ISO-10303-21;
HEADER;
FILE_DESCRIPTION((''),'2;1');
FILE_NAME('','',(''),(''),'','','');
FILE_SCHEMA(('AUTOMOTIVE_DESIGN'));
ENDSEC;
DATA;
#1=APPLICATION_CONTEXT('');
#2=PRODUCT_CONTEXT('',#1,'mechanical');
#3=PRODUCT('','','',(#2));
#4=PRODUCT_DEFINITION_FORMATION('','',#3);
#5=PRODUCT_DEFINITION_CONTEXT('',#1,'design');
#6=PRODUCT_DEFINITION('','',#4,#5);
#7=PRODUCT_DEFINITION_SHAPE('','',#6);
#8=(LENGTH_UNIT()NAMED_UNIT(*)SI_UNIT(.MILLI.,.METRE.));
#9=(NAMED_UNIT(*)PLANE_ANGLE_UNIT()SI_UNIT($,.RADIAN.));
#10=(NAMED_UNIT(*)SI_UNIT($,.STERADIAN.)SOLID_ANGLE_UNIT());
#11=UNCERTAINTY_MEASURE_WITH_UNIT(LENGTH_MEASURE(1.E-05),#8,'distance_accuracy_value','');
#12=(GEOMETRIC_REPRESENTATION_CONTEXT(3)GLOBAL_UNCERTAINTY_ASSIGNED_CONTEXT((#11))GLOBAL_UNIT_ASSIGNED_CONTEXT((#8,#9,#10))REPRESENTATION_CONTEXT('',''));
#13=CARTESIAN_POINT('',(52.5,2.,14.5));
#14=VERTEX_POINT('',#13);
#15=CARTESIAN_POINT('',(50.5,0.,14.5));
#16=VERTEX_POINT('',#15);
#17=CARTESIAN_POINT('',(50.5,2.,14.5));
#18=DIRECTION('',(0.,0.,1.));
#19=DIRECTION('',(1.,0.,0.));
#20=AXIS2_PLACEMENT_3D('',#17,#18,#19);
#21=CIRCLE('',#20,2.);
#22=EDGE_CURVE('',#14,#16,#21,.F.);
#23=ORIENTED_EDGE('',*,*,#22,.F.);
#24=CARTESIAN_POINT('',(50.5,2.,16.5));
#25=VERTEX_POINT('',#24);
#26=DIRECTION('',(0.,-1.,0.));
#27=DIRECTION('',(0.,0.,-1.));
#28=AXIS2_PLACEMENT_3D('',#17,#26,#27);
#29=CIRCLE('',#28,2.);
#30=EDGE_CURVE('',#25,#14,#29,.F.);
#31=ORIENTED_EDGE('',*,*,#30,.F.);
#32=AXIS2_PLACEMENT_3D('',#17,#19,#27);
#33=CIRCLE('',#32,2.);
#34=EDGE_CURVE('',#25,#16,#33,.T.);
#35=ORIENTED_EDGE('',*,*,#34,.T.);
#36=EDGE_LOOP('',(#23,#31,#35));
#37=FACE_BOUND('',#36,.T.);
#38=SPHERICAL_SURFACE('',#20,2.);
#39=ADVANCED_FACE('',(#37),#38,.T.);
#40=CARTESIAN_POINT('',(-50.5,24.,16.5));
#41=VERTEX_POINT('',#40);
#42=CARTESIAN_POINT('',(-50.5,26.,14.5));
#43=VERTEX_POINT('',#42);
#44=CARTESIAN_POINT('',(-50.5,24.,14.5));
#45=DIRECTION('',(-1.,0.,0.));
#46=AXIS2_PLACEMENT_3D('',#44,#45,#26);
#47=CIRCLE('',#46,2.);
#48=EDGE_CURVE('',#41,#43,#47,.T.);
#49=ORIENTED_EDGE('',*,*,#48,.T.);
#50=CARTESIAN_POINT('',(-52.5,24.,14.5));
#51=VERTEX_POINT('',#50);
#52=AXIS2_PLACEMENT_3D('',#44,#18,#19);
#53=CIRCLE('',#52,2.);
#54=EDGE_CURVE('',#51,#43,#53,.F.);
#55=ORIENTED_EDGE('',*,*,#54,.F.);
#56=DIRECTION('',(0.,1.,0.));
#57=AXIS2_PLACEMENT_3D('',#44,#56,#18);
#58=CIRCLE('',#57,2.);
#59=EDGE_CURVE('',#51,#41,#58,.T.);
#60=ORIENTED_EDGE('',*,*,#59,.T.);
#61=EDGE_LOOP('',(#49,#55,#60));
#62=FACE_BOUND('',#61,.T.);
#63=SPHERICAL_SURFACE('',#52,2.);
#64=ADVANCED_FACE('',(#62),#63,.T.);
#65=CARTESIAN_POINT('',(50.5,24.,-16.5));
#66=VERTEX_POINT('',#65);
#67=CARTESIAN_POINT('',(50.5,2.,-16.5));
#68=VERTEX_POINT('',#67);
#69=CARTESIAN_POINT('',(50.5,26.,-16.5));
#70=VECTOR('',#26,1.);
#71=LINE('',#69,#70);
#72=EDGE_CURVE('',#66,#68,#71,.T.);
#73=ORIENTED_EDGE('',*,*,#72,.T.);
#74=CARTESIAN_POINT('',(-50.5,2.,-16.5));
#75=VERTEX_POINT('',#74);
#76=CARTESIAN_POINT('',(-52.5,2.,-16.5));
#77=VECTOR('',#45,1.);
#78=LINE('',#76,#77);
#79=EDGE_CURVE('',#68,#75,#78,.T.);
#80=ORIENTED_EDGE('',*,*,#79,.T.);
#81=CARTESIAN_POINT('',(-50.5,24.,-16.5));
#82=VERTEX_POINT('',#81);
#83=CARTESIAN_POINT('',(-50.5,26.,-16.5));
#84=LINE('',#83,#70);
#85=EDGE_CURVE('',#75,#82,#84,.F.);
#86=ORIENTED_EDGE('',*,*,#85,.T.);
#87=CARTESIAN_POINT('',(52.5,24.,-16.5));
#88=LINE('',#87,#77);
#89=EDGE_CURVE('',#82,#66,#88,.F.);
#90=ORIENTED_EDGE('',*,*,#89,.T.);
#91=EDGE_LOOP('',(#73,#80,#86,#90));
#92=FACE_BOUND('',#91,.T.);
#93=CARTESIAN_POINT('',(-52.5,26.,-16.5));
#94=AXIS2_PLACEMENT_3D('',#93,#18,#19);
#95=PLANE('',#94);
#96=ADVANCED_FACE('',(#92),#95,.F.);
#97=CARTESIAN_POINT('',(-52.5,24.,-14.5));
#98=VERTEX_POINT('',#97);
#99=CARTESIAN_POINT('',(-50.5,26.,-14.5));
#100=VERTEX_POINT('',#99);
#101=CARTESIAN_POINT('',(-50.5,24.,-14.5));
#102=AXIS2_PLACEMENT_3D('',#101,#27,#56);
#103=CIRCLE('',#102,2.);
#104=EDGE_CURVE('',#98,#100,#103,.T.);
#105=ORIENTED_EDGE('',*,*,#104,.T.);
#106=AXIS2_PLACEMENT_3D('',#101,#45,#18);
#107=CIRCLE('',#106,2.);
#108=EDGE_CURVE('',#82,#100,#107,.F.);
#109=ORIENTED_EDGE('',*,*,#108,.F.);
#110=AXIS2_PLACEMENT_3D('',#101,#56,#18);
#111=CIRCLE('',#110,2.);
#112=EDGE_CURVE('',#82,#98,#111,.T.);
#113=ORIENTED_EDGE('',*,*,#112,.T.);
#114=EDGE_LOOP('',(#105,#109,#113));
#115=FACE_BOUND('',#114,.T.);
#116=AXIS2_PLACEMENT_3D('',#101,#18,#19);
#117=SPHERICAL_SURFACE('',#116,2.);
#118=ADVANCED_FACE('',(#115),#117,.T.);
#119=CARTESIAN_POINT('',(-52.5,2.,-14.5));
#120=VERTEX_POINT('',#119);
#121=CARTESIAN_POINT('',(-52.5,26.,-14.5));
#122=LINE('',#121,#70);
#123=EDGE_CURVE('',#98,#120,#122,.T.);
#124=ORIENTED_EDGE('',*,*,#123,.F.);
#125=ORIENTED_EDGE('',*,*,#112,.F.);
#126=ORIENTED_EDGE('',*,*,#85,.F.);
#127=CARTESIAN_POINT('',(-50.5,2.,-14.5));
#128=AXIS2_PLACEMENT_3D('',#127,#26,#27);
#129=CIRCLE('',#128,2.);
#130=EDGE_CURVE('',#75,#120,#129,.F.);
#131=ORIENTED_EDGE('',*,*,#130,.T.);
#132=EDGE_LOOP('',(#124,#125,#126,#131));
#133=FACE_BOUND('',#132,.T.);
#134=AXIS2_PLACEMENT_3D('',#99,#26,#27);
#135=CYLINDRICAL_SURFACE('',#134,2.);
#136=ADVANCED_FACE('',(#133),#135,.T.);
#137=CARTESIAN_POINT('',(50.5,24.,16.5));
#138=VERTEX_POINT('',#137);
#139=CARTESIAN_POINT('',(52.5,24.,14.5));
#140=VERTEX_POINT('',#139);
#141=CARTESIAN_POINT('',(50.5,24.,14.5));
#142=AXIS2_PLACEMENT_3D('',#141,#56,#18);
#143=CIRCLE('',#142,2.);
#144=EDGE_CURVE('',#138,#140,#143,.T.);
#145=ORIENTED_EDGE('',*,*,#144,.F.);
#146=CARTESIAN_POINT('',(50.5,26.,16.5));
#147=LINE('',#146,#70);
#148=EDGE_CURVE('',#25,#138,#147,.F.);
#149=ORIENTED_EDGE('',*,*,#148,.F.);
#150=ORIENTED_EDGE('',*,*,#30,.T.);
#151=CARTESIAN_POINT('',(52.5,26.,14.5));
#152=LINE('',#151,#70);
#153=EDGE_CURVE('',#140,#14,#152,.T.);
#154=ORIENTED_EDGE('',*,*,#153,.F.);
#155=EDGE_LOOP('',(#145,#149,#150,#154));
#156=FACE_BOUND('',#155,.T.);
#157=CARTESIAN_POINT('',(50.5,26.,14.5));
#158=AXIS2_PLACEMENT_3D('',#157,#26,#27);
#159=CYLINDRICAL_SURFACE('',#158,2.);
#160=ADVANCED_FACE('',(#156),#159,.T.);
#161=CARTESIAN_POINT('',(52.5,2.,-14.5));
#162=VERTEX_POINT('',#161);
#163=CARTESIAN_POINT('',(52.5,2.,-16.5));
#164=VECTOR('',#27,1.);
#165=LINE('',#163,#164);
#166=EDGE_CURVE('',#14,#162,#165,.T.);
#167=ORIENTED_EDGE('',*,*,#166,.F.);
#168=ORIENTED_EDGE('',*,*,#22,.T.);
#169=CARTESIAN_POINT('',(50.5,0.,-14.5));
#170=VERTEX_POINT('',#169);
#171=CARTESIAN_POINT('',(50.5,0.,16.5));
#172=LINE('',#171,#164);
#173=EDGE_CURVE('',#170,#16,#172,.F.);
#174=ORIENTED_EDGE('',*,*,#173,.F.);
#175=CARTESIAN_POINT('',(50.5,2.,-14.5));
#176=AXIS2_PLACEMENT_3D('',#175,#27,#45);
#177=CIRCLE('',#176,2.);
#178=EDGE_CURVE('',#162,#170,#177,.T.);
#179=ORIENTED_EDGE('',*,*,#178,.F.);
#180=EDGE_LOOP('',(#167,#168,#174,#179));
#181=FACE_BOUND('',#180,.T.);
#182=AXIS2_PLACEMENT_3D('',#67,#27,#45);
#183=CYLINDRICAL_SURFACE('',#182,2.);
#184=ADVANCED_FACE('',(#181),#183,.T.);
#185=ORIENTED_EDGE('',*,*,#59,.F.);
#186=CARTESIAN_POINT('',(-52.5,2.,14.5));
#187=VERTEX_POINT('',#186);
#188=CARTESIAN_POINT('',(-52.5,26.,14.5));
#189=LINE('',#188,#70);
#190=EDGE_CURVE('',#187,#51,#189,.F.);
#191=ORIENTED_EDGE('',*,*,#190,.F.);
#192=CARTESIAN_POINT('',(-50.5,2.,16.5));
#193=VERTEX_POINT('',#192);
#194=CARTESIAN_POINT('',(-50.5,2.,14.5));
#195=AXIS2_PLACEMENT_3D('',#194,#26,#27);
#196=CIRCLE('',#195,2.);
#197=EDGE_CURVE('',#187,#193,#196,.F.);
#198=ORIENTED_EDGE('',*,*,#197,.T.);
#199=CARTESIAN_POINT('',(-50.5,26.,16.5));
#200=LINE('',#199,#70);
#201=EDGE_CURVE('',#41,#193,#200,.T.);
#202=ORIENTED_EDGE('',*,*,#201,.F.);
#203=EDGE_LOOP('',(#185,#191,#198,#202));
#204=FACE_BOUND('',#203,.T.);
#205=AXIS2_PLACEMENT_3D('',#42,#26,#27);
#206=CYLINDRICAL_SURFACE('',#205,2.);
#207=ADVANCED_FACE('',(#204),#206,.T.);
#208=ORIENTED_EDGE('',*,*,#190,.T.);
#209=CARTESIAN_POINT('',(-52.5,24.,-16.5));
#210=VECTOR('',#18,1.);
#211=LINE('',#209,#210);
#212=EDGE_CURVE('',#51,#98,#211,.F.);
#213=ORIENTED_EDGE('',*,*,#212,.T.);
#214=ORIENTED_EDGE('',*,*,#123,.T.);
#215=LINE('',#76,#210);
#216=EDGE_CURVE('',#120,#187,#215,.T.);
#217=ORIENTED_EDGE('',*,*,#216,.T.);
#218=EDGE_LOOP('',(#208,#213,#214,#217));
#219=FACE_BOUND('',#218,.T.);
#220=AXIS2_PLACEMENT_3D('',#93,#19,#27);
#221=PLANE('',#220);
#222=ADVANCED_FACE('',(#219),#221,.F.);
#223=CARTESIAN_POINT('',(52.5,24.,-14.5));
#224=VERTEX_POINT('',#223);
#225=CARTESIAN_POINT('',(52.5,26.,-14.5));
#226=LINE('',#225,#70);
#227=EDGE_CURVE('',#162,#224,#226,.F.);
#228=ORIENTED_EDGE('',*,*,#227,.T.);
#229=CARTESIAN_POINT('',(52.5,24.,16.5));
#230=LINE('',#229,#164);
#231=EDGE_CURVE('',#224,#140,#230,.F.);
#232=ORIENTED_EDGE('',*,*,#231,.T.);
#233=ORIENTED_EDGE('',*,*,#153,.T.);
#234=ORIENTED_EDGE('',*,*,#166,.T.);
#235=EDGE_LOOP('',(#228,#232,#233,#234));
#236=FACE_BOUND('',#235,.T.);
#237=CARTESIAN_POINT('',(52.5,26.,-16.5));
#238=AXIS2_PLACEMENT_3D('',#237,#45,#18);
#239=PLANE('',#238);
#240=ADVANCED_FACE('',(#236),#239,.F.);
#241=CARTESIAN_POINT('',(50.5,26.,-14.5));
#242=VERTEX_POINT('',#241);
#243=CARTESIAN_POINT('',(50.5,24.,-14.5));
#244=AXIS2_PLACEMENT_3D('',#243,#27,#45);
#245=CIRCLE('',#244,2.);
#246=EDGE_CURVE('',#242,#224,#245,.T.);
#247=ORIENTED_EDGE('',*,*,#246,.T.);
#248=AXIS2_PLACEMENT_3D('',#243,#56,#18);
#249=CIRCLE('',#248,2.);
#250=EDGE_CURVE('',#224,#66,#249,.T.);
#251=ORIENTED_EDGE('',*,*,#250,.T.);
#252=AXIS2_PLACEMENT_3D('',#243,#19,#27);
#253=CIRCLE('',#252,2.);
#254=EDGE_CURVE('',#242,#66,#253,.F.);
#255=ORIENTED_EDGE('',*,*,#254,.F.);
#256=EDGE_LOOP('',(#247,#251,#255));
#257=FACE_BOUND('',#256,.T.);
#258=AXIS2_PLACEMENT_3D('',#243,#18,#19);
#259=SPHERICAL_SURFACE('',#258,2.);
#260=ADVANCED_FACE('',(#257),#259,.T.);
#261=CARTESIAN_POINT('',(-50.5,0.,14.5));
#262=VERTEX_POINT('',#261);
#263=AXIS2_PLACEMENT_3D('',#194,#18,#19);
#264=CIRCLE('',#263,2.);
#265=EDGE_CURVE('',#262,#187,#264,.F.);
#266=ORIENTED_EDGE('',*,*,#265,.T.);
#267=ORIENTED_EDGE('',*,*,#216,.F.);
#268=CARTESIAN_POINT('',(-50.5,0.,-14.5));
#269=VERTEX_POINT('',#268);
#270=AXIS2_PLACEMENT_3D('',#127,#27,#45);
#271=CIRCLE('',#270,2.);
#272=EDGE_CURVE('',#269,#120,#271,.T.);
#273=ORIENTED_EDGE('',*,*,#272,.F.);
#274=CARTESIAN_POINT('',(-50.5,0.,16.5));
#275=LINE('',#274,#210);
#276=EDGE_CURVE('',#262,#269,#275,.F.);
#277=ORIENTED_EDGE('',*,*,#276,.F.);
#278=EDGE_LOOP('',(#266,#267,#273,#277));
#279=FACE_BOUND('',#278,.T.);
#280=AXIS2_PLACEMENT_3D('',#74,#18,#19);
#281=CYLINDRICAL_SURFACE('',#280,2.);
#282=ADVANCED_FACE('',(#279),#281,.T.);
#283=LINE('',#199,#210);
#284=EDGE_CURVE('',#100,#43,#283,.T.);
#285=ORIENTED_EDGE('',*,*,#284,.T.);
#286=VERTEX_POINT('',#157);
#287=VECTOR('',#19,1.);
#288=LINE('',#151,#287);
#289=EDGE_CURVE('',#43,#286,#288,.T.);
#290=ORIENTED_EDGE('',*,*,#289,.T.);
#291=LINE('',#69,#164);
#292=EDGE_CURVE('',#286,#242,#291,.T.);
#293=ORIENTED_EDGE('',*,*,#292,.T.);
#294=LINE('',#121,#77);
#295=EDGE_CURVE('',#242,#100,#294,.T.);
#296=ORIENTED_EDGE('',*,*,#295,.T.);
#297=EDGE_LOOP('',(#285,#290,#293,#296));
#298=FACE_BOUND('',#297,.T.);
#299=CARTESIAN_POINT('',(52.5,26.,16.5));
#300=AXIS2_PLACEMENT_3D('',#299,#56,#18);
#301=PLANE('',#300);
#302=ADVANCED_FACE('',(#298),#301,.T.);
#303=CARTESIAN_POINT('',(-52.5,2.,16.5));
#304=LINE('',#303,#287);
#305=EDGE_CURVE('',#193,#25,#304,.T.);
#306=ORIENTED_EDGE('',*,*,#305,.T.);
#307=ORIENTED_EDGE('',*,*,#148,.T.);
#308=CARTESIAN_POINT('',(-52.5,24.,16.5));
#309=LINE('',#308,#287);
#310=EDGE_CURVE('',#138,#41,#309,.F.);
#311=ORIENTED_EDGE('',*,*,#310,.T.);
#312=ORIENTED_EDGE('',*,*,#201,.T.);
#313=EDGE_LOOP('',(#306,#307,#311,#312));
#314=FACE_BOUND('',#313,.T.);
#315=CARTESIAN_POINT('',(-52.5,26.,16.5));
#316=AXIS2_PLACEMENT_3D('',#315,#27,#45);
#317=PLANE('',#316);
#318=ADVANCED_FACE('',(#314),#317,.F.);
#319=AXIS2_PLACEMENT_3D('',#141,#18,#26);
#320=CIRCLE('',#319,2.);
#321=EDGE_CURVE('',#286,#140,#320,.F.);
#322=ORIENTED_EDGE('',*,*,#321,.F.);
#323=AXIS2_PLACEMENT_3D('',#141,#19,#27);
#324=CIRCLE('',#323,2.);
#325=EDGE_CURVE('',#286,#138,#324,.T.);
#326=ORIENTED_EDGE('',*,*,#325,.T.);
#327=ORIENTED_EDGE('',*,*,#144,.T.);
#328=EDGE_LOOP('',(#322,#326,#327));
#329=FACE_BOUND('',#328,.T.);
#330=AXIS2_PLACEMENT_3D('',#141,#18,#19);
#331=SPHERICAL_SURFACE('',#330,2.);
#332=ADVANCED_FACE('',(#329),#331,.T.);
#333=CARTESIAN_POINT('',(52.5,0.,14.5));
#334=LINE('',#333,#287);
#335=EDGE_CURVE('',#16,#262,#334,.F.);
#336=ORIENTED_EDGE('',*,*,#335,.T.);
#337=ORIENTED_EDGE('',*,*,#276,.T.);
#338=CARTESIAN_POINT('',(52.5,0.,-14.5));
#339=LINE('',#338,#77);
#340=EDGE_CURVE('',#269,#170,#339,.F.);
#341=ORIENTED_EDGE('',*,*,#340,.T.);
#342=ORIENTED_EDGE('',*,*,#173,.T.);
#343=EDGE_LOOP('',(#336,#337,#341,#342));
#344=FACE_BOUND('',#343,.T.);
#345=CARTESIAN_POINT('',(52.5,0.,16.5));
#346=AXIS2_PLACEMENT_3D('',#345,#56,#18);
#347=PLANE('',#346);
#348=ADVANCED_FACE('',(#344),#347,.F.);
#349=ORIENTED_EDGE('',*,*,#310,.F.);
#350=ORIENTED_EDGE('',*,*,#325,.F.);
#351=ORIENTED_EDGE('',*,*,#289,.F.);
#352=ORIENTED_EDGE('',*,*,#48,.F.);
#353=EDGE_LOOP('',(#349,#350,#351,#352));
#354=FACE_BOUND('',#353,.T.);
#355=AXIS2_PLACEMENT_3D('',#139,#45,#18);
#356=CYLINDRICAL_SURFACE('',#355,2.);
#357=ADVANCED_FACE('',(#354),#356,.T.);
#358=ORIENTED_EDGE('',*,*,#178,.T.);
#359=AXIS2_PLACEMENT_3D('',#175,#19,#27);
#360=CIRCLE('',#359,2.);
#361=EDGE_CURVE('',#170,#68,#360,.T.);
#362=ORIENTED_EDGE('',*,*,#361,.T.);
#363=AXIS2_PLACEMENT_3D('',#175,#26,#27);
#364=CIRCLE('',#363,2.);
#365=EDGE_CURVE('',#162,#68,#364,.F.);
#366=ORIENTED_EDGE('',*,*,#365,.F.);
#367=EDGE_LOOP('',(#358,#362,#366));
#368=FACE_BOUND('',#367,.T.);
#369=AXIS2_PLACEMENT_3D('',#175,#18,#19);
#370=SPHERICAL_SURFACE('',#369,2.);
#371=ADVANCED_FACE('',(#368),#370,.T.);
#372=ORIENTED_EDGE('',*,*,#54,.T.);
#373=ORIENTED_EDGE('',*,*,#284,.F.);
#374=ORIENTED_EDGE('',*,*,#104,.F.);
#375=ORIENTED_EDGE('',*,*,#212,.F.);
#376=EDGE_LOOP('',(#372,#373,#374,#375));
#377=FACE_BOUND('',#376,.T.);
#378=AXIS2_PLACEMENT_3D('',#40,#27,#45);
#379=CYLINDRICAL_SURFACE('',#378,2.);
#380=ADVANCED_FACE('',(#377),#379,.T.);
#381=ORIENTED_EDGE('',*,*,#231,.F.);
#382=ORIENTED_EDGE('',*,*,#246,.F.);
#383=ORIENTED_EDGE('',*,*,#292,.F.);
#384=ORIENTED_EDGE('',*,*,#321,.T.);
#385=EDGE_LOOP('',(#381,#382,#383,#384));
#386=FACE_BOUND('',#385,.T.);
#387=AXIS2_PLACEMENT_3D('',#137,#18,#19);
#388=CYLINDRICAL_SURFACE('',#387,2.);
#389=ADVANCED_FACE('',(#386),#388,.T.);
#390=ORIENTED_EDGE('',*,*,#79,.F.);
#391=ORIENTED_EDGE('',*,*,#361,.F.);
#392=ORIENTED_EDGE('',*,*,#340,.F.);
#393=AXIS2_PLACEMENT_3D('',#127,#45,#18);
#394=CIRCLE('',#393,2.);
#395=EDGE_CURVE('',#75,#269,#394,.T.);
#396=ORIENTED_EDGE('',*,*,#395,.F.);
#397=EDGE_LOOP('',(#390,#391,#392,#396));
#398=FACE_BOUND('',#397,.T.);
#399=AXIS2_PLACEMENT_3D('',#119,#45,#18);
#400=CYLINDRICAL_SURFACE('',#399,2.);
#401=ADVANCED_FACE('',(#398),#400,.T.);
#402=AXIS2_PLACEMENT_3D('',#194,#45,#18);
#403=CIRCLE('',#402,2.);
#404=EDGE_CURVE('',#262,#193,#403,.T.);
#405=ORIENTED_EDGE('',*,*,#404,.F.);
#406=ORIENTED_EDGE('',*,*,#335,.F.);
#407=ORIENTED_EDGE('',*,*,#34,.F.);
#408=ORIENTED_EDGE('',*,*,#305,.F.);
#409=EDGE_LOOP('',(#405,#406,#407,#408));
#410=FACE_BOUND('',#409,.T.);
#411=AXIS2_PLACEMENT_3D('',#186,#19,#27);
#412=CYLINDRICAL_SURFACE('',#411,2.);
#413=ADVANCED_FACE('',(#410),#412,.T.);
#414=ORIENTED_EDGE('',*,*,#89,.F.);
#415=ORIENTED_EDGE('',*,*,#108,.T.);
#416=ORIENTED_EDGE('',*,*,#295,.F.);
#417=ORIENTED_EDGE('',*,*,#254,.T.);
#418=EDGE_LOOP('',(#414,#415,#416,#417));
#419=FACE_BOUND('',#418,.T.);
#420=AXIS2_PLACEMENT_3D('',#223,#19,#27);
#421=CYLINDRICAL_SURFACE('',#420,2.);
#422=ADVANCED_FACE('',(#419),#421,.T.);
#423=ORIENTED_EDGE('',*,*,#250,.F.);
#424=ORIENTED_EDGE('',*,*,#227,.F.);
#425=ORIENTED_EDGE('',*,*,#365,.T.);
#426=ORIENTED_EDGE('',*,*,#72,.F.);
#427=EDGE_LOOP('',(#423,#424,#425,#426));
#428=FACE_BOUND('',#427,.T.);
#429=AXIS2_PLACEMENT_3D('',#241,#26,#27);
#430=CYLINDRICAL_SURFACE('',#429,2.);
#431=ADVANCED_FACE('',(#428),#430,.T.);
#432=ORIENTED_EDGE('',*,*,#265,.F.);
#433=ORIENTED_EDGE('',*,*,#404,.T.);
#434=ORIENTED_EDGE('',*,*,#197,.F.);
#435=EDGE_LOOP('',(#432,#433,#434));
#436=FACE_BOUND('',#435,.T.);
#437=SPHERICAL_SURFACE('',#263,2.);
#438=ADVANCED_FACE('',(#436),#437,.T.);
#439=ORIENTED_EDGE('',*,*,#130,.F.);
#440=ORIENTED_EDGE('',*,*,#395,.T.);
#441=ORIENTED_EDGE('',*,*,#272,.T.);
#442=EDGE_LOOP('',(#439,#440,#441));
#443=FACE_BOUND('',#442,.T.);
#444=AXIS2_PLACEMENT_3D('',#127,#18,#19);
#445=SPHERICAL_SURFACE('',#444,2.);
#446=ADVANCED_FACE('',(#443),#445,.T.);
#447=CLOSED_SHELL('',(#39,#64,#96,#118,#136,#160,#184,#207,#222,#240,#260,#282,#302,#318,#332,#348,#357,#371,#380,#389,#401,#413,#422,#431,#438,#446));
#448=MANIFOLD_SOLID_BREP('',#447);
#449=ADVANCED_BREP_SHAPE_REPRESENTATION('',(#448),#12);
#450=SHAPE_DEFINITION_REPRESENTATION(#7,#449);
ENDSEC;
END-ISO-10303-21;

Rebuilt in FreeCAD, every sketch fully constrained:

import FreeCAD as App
import Part
import Sketcher
from FreeCAD import Vector

doc = App.newDocument("Part")
params = doc.addObject("Spreadsheet::Sheet", "Params")
for row, (alias, value) in enumerate([
    ("sketch1_width", "105 mm"),
    ("sketch1_height", "33 mm"),
    ("pad1_length", "26 mm"),
    ("fillet_radius", "2 mm"),
], start=1):
    params.set(f"A{row}", alias)
    params.set(f"B{row}", "=" + value)
    params.setAlias(f"B{row}", alias)

body = doc.addObject("PartDesign::Body", "Body")

sketch1 = doc.addObject("Sketcher::SketchObject", "Sketch")
body.addObject(sketch1)
sketch1.AttachmentSupport = (doc.XZ_Plane, [""])
sketch1.MapMode = "FlatFace"
sketch1.addGeometry(Part.LineSegment(Vector(-52, -16, 0), Vector(-52, 16, 0)), False)
sketch1.addGeometry(Part.LineSegment(Vector(-52, 16, 0), Vector(52, 16, 0)), False)
sketch1.addGeometry(Part.LineSegment(Vector(52, 16, 0), Vector(52, -16, 0)), False)
sketch1.addGeometry(Part.LineSegment(Vector(52, -16, 0), Vector(-52, -16, 0)), False)
sketch1.addConstraint(Sketcher.Constraint("Coincident", 0, 2, 1, 1))
sketch1.addConstraint(Sketcher.Constraint("Coincident", 1, 2, 2, 1))
sketch1.addConstraint(Sketcher.Constraint("Coincident", 2, 2, 3, 1))
sketch1.addConstraint(Sketcher.Constraint("Coincident", 3, 2, 0, 1))
sketch1.addConstraint(Sketcher.Constraint("Vertical", 0))
sketch1.addConstraint(Sketcher.Constraint("Horizontal", 1))
sketch1.addConstraint(Sketcher.Constraint("Vertical", 2))
sketch1.addConstraint(Sketcher.Constraint("Horizontal", 3))
sketch1.addConstraint(Sketcher.Constraint("Symmetric", 0, 2, 2, 2, -1, 1))
sketch1.addConstraint(Sketcher.Constraint("DistanceX", 1, 1, 1, 2, 105.0))
sketch1.addConstraint(Sketcher.Constraint("DistanceY", 0, 1, 0, 2, 33.0))
sketch1.setExpression("Constraints[9]", "Params.sketch1_width")
sketch1.setExpression("Constraints[10]", "Params.sketch1_height")
pad1 = doc.addObject("PartDesign::Pad", "Pad")
body.addObject(pad1)
pad1.Profile = sketch1
pad1.setExpression("Length", "Params.pad1_length")
pad1.Reversed = True
doc.recompute()

fillet = doc.addObject("PartDesign::Fillet", "Fillet")
body.addObject(fillet)
fillet.Base = (pad1, ["Edge1"])
fillet.UseAllEdges = True
fillet.setExpression("Radius", "Params.fillet_radius")

doc.recompute()
